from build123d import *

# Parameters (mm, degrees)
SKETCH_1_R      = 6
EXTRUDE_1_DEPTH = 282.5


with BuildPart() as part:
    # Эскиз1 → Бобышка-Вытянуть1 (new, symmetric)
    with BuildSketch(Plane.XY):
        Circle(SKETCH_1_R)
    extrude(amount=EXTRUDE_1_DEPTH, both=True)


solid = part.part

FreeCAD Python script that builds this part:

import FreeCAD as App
import Part
import Sketcher

doc = App.newDocument("Part")
body = doc.addObject("PartDesign::Body", "Body")

# Sketch on XY plane
sketch1 = body.newObject("Sketcher::SketchObject", "Sketch")
sketch1.AttachmentSupport = (doc.getObject("XY_Plane"), [""])
sketch1.MapMode = "FlatFace"
sketch1.addGeometry(Part.Circle(App.Vector(0, 0, 0), App.Vector(0, 0, 1), 6), False)
sketch1.addConstraint(Sketcher.Constraint("Coincident", 0, 3, -1, 1))
sketch1.addConstraint(Sketcher.Constraint("Diameter", 0, 12.0))
pad1 = body.newObject("PartDesign::Pad", "Pad")
pad1.Profile = sketch1
pad1.Length = 565
pad1.Midplane = True

doc.recompute()
